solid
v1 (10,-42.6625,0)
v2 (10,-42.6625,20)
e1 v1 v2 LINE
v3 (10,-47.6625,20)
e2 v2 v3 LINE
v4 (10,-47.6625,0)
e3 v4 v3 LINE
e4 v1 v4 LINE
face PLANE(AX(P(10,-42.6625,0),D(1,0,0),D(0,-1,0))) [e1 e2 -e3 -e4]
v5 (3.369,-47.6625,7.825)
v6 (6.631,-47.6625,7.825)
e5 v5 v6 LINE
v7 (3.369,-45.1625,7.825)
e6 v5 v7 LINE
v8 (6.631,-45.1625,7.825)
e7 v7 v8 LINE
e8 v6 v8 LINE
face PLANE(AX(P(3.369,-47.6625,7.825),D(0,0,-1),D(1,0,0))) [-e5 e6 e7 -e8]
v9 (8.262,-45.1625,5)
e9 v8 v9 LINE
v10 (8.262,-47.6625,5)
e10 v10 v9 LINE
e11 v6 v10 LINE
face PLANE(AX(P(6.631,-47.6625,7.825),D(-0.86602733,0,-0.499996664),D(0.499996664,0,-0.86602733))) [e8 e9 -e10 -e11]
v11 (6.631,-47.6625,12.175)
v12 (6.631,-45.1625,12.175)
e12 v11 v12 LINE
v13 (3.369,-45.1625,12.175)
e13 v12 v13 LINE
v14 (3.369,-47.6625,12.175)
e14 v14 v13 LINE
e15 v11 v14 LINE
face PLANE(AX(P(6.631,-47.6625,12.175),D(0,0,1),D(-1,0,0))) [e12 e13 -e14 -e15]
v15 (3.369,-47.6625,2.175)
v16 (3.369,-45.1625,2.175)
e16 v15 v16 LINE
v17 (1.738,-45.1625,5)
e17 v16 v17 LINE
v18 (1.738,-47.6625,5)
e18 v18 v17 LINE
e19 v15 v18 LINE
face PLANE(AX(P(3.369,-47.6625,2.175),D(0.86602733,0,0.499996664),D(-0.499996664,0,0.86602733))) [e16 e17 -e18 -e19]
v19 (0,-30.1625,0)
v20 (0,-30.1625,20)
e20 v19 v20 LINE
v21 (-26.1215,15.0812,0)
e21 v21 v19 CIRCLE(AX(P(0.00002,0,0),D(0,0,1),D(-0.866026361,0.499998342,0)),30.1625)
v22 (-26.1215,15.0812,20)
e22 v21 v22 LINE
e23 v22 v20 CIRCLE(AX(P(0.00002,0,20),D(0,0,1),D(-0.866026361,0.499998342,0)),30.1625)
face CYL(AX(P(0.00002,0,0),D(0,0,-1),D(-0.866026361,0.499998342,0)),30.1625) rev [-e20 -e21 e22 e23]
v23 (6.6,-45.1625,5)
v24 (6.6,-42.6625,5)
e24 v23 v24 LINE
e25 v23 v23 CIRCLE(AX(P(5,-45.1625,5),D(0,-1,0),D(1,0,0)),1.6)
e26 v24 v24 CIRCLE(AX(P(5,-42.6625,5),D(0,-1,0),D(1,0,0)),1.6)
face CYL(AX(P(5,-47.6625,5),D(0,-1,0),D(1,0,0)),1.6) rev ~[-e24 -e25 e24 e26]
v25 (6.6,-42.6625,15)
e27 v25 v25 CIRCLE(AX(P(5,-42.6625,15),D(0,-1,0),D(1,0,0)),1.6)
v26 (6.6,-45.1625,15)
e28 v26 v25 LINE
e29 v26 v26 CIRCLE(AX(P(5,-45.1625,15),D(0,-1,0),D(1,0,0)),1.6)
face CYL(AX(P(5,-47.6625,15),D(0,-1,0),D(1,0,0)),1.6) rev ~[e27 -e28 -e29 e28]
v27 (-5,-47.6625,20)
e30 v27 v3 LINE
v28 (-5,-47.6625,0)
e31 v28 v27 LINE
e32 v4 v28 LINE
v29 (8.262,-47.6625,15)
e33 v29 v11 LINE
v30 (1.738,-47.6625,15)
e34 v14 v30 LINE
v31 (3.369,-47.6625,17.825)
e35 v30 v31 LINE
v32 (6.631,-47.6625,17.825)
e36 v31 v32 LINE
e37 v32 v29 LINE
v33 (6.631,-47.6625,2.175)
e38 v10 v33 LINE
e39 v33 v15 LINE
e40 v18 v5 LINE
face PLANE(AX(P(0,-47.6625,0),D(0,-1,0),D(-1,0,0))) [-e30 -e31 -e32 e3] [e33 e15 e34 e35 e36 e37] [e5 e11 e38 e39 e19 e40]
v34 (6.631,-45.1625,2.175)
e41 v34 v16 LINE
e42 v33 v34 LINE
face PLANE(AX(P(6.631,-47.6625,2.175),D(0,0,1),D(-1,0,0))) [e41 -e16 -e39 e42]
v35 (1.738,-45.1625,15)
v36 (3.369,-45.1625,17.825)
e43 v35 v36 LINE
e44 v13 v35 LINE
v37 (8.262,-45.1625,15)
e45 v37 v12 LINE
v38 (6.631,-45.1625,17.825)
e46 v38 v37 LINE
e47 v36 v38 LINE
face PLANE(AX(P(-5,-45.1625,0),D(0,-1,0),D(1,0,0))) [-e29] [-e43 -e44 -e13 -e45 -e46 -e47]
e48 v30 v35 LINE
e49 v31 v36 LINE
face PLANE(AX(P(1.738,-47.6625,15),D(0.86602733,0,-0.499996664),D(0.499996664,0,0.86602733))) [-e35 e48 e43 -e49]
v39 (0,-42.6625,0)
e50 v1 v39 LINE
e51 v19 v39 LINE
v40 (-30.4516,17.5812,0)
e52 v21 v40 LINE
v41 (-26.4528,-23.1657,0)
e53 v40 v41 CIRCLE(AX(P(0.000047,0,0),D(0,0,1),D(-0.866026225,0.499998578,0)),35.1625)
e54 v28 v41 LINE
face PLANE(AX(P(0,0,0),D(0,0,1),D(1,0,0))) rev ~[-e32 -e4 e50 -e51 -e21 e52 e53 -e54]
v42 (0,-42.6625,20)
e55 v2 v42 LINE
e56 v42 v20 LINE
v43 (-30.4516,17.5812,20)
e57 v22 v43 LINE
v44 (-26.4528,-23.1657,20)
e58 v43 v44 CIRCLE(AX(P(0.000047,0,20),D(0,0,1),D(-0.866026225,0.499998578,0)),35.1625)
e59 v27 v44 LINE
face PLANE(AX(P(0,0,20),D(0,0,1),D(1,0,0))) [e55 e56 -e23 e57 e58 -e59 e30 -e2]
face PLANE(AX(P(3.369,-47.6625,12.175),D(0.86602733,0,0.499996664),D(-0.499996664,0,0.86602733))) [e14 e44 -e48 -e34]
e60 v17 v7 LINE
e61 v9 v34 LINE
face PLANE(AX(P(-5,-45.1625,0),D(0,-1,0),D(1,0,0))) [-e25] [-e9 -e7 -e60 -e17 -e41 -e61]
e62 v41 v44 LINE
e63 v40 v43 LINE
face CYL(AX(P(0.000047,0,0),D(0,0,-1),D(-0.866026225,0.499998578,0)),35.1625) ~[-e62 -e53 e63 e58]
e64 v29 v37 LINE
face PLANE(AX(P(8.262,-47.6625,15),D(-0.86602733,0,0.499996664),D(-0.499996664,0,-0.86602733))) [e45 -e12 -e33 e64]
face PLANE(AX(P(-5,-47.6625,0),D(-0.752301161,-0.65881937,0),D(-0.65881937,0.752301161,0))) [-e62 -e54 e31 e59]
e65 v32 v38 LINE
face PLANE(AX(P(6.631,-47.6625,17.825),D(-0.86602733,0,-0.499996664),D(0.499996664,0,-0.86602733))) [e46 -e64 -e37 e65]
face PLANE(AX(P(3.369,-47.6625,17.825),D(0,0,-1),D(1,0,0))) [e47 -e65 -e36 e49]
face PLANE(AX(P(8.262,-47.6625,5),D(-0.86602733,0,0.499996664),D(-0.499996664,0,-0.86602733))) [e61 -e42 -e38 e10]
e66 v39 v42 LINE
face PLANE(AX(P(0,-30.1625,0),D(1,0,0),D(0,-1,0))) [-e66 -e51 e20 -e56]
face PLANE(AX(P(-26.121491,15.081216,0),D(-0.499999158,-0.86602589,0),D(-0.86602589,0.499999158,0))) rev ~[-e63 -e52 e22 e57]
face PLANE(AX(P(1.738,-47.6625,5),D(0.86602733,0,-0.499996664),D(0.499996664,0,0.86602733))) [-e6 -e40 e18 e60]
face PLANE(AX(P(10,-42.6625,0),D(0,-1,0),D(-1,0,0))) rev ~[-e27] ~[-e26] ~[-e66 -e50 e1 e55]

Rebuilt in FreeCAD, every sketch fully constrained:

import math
import FreeCAD as App
import Part
import Sketcher
Q = App.Units.Quantity

doc = App.newDocument("Part")
params = doc.addObject("Spreadsheet::Sheet", "Params")
for row, (alias, value) in enumerate([
    ("sketch1_width", "10 mm"),
    ("sketch1_height", "5 mm"),
    ("sketch1_length", "5 mm"),
    ("sketch1_height2", "12.5 mm"),
    ("pad1_length", "20 mm"),
    ("sketch2_diameter", "3.2 mm"),
    ("sketch3_diameter", "3.2 mm"),
    ("pocket2_length", "2.5 mm"),
], start=1):
    params.set(f"A{row}", alias)
    params.set(f"B{row}", "=" + value)
    params.setAlias(f"B{row}", alias)

body = doc.addObject("PartDesign::Body", "Body")

sketch1 = body.newObject("Sketcher::SketchObject", "Sketch")
sketch1.AttachmentSupport = (doc.getObject("XY_Plane"), [""])
sketch1.MapMode = "FlatFace"
sketch1.addGeometry([
    Part.LineSegment(App.Vector(-26.121491, 15.081216, 0), App.Vector(-30.4516, 17.5812, 0)),
    Part.ArcOfCircle(Part.Circle(App.Vector(0, 0, 0), App.Vector(0, 0, 1), 35.162459), math.radians(150.000056), math.radians(221.209838)),
    Part.LineSegment(App.Vector(-26.4528, -23.1657, 0), App.Vector(-5, -47.6625, 0)),
    Part.LineSegment(App.Vector(-5, -47.6625, 0), App.Vector(10, -47.6625, 0)),
    Part.LineSegment(App.Vector(10, -47.6625, 0), App.Vector(10, -42.6625, 0)),
    Part.LineSegment(App.Vector(10, -42.6625, 0), App.Vector(0, -42.6625, 0)),
    Part.LineSegment(App.Vector(0, -42.6625, 0), App.Vector(0, -30.1625, 0)),
    Part.ArcOfCircle(Part.Circle(App.Vector(0, 0, 0), App.Vector(0, 0, 1), 30.1625), math.radians(150.000091), math.radians(270)),
], False)
sketch1.addConstraint([
    Sketcher.Constraint("Coincident", 0, 2, 1, 1),
    Sketcher.Constraint("Tangent", 1, 2, 2, 1),
    Sketcher.Constraint("Coincident", 2, 2, 3, 1),
    Sketcher.Constraint("Coincident", 3, 2, 4, 1),
    Sketcher.Constraint("Coincident", 4, 2, 5, 1),
    Sketcher.Constraint("Coincident", 5, 2, 6, 1),
    Sketcher.Constraint("Coincident", 6, 2, 7, 2),
    Sketcher.Constraint("Coincident", 7, 1, 0, 1),
    Sketcher.Constraint("Horizontal", 3),
    Sketcher.Constraint("Vertical", 4),
    Sketcher.Constraint("Horizontal", 5),
    Sketcher.Constraint("Vertical", 6),
    Sketcher.Constraint("Coincident", 1, 3, -1, 1),
    Sketcher.Constraint("Coincident", 7, 3, -1, 1),
    Sketcher.Constraint("PointOnObject", 5, 2, -2),
    Sketcher.Constraint("DistanceX", 5, 2, 5, 1, Q("10 mm")),
    Sketcher.Constraint("DistanceY", 4, 1, 4, 2, Q("5 mm")),
    Sketcher.Constraint("Distance", 0, Q("5 mm")),
    Sketcher.Constraint("DistanceY", 6, 1, 6, 2, Q("12.5 mm")),
    Sketcher.Constraint("DistanceX", 2, 2, -1, 1, Q("5 mm")),
    Sketcher.Constraint("Radius", 1, Q("35.1625 mm")),
    Sketcher.Constraint("Angle", 0, Q("150 deg")),
    Sketcher.Constraint("DistanceY", 1, 2, 0, 2, Q("40.747 mm")),
])
sketch1.setExpression("Constraints[15]", "Params.sketch1_width")
sketch1.setExpression("Constraints[16]", "Params.sketch1_height")
sketch1.setExpression("Constraints[17]", "Params.sketch1_length")
sketch1.setExpression("Constraints[18]", "Params.sketch1_height2")
pad1 = body.newObject("PartDesign::Pad", "Pad")
pad1.Profile = sketch1
pad1.setExpression("Length", "Params.pad1_length")

sketch2 = body.newObject("Sketcher::SketchObject", "Sketch001")
sketch2.AttachmentSupport = (doc.getObject("XZ_Plane"), [""])
sketch2.MapMode = "FlatFace"
sketch2.AttachmentOffset = App.Placement(App.Vector(0, 0, 47.6625), App.Rotation())
sketch2.addGeometry([
    Part.Circle(App.Vector(5, 5, 0), App.Vector(0, 0, 1), 1.6),
    Part.Circle(App.Vector(5, 15, 0), App.Vector(0, 0, 1), 1.6),
], False)
sketch2.addConstraint([
    Sketcher.Constraint("Equal", 0, 1),
    Sketcher.Constraint("Vertical", 0, 3, 1, 3),
    Sketcher.Constraint("Diameter", 0, Q("3.2 mm")),
    Sketcher.Constraint("DistanceX", -1, 1, 0, 3, Q("5 mm")),
    Sketcher.Constraint("DistanceY", -1, 1, 0, 3, Q("5 mm")),
    Sketcher.Constraint("DistanceY", -1, 1, 1, 3, Q("15 mm")),
])
sketch2.setExpression("Constraints[2]", "Params.sketch2_diameter")
pocket1 = body.newObject("PartDesign::Pocket", "Pocket")
pocket1.Profile = sketch2
pocket1.Type = "ThroughAll"

sketch3 = body.newObject("Sketcher::SketchObject", "Sketch002")
sketch3.AttachmentSupport = (doc.getObject("XZ_Plane"), [""])
sketch3.MapMode = "FlatFace"
sketch3.AttachmentOffset = App.Placement(App.Vector(0, 0, 47.6625), App.Rotation())
sketch3.addGeometry([
    Part.LineSegment(App.Vector(3.369, 17.825, 0), App.Vector(1.738, 15, 0)),
    Part.LineSegment(App.Vector(1.738, 15, 0), App.Vector(3.369, 12.175, 0)),
    Part.LineSegment(App.Vector(3.369, 12.175, 0), App.Vector(6.631, 12.175, 0)),
    Part.LineSegment(App.Vector(6.631, 12.175, 0), App.Vector(8.262, 15, 0)),
    Part.LineSegment(App.Vector(8.262, 15, 0), App.Vector(6.631, 17.825, 0)),
    Part.LineSegment(App.Vector(6.631, 17.825, 0), App.Vector(3.369, 17.825, 0)),
    Part.Circle(App.Vector(5, 15, 0), App.Vector(0, 0, 1), 1.6),
    Part.LineSegment(App.Vector(3.369, 7.825, 0), App.Vector(1.738, 5, 0)),
    Part.LineSegment(App.Vector(1.738, 5, 0), App.Vector(3.369, 2.175, 0)),
    Part.LineSegment(App.Vector(3.369, 2.175, 0), App.Vector(6.631, 2.175, 0)),
    Part.LineSegment(App.Vector(6.631, 2.175, 0), App.Vector(8.262, 5, 0)),
    Part.LineSegment(App.Vector(8.262, 5, 0), App.Vector(6.631, 7.825, 0)),
    Part.LineSegment(App.Vector(6.631, 7.825, 0), App.Vector(3.369, 7.825, 0)),
    Part.Circle(App.Vector(5, 5, 0), App.Vector(0, 0, 1), 1.6),
], False)
sketch3.addConstraint([
    Sketcher.Constraint("Coincident", 0, 2, 1, 1),
    Sketcher.Constraint("Coincident", 1, 2, 2, 1),
    Sketcher.Constraint("Coincident", 2, 2, 3, 1),
    Sketcher.Constraint("Coincident", 3, 2, 4, 1),
    Sketcher.Constraint("Coincident", 4, 2, 5, 1),
    Sketcher.Constraint("Coincident", 5, 2, 0, 1),
    Sketcher.Constraint("Coincident", 7, 2, 8, 1),
    Sketcher.Constraint("Coincident", 8, 2, 9, 1),
    Sketcher.Constraint("Coincident", 9, 2, 10, 1),
    Sketcher.Constraint("Coincident", 10, 2, 11, 1),
    Sketcher.Constraint("Coincident", 11, 2, 12, 1),
    Sketcher.Constraint("Coincident", 12, 2, 7, 1),
    Sketcher.Constraint("Horizontal", 2),
    Sketcher.Constraint("Horizontal", 5),
    Sketcher.Constraint("Horizontal", 9),
    Sketcher.Constraint("Horizontal", 12),
    Sketcher.Constraint("Equal", 6, 13),
    Sketcher.Constraint("Parallel", 0, 3),
    Sketcher.Constraint("Parallel", 1, 4),
    Sketcher.Constraint("Parallel", 3, 7),
    Sketcher.Constraint("Parallel", 4, 8),
    Sketcher.Constraint("Parallel", 7, 10),
    Sketcher.Constraint("Parallel", 8, 11),
    Sketcher.Constraint("Horizontal", 6, 3, 0, 2),
    Sketcher.Constraint("Horizontal", 0, 2, 3, 2),
    Sketcher.Constraint("Horizontal", 13, 3, 7, 2),
    Sketcher.Constraint("Horizontal", 7, 2, 10, 2),
    Sketcher.Constraint("Vertical", 6, 3, 13, 3),
    Sketcher.Constraint("Vertical", 2, 2, 4, 2),
    Sketcher.Constraint("Vertical", 1, 2, 5, 2),
    Sketcher.Constraint("Vertical", 0, 2, 7, 2),
    Sketcher.Constraint("Vertical", 5, 2, 8, 2),
    Sketcher.Constraint("Vertical", 4, 2, 9, 2),
    Sketcher.Constraint("Vertical", 9, 2, 11, 2),
    Sketcher.Constraint("Diameter", 6, Q("3.2 mm")),
    Sketcher.Constraint("Angle", 0, Q("-119.9998 deg")),
    Sketcher.Constraint("DistanceY", 2, 2, 4, 2, Q("5.65 mm")),
    Sketcher.Constraint("DistanceX", -1, 1, 6, 3, Q("5 mm")),
    Sketcher.Constraint("DistanceY", -1, 1, 6, 3, Q("15 mm")),
    Sketcher.Constraint("DistanceY", -1, 1, 13, 3, Q("5 mm")),
    Sketcher.Constraint("DistanceX", 2, 1, 2, 2, Q("3.262 mm")),
    Sketcher.Constraint("DistanceX", -1, 1, 0, 2, Q("1.738 mm")),
])
sketch3.setExpression("Constraints[34]", "Params.sketch3_diameter")
pocket2 = body.newObject("PartDesign::Pocket", "Pocket001")
pocket2.Profile = sketch3
pocket2.setExpression("Length", "Params.pocket2_length")

doc.recompute()
